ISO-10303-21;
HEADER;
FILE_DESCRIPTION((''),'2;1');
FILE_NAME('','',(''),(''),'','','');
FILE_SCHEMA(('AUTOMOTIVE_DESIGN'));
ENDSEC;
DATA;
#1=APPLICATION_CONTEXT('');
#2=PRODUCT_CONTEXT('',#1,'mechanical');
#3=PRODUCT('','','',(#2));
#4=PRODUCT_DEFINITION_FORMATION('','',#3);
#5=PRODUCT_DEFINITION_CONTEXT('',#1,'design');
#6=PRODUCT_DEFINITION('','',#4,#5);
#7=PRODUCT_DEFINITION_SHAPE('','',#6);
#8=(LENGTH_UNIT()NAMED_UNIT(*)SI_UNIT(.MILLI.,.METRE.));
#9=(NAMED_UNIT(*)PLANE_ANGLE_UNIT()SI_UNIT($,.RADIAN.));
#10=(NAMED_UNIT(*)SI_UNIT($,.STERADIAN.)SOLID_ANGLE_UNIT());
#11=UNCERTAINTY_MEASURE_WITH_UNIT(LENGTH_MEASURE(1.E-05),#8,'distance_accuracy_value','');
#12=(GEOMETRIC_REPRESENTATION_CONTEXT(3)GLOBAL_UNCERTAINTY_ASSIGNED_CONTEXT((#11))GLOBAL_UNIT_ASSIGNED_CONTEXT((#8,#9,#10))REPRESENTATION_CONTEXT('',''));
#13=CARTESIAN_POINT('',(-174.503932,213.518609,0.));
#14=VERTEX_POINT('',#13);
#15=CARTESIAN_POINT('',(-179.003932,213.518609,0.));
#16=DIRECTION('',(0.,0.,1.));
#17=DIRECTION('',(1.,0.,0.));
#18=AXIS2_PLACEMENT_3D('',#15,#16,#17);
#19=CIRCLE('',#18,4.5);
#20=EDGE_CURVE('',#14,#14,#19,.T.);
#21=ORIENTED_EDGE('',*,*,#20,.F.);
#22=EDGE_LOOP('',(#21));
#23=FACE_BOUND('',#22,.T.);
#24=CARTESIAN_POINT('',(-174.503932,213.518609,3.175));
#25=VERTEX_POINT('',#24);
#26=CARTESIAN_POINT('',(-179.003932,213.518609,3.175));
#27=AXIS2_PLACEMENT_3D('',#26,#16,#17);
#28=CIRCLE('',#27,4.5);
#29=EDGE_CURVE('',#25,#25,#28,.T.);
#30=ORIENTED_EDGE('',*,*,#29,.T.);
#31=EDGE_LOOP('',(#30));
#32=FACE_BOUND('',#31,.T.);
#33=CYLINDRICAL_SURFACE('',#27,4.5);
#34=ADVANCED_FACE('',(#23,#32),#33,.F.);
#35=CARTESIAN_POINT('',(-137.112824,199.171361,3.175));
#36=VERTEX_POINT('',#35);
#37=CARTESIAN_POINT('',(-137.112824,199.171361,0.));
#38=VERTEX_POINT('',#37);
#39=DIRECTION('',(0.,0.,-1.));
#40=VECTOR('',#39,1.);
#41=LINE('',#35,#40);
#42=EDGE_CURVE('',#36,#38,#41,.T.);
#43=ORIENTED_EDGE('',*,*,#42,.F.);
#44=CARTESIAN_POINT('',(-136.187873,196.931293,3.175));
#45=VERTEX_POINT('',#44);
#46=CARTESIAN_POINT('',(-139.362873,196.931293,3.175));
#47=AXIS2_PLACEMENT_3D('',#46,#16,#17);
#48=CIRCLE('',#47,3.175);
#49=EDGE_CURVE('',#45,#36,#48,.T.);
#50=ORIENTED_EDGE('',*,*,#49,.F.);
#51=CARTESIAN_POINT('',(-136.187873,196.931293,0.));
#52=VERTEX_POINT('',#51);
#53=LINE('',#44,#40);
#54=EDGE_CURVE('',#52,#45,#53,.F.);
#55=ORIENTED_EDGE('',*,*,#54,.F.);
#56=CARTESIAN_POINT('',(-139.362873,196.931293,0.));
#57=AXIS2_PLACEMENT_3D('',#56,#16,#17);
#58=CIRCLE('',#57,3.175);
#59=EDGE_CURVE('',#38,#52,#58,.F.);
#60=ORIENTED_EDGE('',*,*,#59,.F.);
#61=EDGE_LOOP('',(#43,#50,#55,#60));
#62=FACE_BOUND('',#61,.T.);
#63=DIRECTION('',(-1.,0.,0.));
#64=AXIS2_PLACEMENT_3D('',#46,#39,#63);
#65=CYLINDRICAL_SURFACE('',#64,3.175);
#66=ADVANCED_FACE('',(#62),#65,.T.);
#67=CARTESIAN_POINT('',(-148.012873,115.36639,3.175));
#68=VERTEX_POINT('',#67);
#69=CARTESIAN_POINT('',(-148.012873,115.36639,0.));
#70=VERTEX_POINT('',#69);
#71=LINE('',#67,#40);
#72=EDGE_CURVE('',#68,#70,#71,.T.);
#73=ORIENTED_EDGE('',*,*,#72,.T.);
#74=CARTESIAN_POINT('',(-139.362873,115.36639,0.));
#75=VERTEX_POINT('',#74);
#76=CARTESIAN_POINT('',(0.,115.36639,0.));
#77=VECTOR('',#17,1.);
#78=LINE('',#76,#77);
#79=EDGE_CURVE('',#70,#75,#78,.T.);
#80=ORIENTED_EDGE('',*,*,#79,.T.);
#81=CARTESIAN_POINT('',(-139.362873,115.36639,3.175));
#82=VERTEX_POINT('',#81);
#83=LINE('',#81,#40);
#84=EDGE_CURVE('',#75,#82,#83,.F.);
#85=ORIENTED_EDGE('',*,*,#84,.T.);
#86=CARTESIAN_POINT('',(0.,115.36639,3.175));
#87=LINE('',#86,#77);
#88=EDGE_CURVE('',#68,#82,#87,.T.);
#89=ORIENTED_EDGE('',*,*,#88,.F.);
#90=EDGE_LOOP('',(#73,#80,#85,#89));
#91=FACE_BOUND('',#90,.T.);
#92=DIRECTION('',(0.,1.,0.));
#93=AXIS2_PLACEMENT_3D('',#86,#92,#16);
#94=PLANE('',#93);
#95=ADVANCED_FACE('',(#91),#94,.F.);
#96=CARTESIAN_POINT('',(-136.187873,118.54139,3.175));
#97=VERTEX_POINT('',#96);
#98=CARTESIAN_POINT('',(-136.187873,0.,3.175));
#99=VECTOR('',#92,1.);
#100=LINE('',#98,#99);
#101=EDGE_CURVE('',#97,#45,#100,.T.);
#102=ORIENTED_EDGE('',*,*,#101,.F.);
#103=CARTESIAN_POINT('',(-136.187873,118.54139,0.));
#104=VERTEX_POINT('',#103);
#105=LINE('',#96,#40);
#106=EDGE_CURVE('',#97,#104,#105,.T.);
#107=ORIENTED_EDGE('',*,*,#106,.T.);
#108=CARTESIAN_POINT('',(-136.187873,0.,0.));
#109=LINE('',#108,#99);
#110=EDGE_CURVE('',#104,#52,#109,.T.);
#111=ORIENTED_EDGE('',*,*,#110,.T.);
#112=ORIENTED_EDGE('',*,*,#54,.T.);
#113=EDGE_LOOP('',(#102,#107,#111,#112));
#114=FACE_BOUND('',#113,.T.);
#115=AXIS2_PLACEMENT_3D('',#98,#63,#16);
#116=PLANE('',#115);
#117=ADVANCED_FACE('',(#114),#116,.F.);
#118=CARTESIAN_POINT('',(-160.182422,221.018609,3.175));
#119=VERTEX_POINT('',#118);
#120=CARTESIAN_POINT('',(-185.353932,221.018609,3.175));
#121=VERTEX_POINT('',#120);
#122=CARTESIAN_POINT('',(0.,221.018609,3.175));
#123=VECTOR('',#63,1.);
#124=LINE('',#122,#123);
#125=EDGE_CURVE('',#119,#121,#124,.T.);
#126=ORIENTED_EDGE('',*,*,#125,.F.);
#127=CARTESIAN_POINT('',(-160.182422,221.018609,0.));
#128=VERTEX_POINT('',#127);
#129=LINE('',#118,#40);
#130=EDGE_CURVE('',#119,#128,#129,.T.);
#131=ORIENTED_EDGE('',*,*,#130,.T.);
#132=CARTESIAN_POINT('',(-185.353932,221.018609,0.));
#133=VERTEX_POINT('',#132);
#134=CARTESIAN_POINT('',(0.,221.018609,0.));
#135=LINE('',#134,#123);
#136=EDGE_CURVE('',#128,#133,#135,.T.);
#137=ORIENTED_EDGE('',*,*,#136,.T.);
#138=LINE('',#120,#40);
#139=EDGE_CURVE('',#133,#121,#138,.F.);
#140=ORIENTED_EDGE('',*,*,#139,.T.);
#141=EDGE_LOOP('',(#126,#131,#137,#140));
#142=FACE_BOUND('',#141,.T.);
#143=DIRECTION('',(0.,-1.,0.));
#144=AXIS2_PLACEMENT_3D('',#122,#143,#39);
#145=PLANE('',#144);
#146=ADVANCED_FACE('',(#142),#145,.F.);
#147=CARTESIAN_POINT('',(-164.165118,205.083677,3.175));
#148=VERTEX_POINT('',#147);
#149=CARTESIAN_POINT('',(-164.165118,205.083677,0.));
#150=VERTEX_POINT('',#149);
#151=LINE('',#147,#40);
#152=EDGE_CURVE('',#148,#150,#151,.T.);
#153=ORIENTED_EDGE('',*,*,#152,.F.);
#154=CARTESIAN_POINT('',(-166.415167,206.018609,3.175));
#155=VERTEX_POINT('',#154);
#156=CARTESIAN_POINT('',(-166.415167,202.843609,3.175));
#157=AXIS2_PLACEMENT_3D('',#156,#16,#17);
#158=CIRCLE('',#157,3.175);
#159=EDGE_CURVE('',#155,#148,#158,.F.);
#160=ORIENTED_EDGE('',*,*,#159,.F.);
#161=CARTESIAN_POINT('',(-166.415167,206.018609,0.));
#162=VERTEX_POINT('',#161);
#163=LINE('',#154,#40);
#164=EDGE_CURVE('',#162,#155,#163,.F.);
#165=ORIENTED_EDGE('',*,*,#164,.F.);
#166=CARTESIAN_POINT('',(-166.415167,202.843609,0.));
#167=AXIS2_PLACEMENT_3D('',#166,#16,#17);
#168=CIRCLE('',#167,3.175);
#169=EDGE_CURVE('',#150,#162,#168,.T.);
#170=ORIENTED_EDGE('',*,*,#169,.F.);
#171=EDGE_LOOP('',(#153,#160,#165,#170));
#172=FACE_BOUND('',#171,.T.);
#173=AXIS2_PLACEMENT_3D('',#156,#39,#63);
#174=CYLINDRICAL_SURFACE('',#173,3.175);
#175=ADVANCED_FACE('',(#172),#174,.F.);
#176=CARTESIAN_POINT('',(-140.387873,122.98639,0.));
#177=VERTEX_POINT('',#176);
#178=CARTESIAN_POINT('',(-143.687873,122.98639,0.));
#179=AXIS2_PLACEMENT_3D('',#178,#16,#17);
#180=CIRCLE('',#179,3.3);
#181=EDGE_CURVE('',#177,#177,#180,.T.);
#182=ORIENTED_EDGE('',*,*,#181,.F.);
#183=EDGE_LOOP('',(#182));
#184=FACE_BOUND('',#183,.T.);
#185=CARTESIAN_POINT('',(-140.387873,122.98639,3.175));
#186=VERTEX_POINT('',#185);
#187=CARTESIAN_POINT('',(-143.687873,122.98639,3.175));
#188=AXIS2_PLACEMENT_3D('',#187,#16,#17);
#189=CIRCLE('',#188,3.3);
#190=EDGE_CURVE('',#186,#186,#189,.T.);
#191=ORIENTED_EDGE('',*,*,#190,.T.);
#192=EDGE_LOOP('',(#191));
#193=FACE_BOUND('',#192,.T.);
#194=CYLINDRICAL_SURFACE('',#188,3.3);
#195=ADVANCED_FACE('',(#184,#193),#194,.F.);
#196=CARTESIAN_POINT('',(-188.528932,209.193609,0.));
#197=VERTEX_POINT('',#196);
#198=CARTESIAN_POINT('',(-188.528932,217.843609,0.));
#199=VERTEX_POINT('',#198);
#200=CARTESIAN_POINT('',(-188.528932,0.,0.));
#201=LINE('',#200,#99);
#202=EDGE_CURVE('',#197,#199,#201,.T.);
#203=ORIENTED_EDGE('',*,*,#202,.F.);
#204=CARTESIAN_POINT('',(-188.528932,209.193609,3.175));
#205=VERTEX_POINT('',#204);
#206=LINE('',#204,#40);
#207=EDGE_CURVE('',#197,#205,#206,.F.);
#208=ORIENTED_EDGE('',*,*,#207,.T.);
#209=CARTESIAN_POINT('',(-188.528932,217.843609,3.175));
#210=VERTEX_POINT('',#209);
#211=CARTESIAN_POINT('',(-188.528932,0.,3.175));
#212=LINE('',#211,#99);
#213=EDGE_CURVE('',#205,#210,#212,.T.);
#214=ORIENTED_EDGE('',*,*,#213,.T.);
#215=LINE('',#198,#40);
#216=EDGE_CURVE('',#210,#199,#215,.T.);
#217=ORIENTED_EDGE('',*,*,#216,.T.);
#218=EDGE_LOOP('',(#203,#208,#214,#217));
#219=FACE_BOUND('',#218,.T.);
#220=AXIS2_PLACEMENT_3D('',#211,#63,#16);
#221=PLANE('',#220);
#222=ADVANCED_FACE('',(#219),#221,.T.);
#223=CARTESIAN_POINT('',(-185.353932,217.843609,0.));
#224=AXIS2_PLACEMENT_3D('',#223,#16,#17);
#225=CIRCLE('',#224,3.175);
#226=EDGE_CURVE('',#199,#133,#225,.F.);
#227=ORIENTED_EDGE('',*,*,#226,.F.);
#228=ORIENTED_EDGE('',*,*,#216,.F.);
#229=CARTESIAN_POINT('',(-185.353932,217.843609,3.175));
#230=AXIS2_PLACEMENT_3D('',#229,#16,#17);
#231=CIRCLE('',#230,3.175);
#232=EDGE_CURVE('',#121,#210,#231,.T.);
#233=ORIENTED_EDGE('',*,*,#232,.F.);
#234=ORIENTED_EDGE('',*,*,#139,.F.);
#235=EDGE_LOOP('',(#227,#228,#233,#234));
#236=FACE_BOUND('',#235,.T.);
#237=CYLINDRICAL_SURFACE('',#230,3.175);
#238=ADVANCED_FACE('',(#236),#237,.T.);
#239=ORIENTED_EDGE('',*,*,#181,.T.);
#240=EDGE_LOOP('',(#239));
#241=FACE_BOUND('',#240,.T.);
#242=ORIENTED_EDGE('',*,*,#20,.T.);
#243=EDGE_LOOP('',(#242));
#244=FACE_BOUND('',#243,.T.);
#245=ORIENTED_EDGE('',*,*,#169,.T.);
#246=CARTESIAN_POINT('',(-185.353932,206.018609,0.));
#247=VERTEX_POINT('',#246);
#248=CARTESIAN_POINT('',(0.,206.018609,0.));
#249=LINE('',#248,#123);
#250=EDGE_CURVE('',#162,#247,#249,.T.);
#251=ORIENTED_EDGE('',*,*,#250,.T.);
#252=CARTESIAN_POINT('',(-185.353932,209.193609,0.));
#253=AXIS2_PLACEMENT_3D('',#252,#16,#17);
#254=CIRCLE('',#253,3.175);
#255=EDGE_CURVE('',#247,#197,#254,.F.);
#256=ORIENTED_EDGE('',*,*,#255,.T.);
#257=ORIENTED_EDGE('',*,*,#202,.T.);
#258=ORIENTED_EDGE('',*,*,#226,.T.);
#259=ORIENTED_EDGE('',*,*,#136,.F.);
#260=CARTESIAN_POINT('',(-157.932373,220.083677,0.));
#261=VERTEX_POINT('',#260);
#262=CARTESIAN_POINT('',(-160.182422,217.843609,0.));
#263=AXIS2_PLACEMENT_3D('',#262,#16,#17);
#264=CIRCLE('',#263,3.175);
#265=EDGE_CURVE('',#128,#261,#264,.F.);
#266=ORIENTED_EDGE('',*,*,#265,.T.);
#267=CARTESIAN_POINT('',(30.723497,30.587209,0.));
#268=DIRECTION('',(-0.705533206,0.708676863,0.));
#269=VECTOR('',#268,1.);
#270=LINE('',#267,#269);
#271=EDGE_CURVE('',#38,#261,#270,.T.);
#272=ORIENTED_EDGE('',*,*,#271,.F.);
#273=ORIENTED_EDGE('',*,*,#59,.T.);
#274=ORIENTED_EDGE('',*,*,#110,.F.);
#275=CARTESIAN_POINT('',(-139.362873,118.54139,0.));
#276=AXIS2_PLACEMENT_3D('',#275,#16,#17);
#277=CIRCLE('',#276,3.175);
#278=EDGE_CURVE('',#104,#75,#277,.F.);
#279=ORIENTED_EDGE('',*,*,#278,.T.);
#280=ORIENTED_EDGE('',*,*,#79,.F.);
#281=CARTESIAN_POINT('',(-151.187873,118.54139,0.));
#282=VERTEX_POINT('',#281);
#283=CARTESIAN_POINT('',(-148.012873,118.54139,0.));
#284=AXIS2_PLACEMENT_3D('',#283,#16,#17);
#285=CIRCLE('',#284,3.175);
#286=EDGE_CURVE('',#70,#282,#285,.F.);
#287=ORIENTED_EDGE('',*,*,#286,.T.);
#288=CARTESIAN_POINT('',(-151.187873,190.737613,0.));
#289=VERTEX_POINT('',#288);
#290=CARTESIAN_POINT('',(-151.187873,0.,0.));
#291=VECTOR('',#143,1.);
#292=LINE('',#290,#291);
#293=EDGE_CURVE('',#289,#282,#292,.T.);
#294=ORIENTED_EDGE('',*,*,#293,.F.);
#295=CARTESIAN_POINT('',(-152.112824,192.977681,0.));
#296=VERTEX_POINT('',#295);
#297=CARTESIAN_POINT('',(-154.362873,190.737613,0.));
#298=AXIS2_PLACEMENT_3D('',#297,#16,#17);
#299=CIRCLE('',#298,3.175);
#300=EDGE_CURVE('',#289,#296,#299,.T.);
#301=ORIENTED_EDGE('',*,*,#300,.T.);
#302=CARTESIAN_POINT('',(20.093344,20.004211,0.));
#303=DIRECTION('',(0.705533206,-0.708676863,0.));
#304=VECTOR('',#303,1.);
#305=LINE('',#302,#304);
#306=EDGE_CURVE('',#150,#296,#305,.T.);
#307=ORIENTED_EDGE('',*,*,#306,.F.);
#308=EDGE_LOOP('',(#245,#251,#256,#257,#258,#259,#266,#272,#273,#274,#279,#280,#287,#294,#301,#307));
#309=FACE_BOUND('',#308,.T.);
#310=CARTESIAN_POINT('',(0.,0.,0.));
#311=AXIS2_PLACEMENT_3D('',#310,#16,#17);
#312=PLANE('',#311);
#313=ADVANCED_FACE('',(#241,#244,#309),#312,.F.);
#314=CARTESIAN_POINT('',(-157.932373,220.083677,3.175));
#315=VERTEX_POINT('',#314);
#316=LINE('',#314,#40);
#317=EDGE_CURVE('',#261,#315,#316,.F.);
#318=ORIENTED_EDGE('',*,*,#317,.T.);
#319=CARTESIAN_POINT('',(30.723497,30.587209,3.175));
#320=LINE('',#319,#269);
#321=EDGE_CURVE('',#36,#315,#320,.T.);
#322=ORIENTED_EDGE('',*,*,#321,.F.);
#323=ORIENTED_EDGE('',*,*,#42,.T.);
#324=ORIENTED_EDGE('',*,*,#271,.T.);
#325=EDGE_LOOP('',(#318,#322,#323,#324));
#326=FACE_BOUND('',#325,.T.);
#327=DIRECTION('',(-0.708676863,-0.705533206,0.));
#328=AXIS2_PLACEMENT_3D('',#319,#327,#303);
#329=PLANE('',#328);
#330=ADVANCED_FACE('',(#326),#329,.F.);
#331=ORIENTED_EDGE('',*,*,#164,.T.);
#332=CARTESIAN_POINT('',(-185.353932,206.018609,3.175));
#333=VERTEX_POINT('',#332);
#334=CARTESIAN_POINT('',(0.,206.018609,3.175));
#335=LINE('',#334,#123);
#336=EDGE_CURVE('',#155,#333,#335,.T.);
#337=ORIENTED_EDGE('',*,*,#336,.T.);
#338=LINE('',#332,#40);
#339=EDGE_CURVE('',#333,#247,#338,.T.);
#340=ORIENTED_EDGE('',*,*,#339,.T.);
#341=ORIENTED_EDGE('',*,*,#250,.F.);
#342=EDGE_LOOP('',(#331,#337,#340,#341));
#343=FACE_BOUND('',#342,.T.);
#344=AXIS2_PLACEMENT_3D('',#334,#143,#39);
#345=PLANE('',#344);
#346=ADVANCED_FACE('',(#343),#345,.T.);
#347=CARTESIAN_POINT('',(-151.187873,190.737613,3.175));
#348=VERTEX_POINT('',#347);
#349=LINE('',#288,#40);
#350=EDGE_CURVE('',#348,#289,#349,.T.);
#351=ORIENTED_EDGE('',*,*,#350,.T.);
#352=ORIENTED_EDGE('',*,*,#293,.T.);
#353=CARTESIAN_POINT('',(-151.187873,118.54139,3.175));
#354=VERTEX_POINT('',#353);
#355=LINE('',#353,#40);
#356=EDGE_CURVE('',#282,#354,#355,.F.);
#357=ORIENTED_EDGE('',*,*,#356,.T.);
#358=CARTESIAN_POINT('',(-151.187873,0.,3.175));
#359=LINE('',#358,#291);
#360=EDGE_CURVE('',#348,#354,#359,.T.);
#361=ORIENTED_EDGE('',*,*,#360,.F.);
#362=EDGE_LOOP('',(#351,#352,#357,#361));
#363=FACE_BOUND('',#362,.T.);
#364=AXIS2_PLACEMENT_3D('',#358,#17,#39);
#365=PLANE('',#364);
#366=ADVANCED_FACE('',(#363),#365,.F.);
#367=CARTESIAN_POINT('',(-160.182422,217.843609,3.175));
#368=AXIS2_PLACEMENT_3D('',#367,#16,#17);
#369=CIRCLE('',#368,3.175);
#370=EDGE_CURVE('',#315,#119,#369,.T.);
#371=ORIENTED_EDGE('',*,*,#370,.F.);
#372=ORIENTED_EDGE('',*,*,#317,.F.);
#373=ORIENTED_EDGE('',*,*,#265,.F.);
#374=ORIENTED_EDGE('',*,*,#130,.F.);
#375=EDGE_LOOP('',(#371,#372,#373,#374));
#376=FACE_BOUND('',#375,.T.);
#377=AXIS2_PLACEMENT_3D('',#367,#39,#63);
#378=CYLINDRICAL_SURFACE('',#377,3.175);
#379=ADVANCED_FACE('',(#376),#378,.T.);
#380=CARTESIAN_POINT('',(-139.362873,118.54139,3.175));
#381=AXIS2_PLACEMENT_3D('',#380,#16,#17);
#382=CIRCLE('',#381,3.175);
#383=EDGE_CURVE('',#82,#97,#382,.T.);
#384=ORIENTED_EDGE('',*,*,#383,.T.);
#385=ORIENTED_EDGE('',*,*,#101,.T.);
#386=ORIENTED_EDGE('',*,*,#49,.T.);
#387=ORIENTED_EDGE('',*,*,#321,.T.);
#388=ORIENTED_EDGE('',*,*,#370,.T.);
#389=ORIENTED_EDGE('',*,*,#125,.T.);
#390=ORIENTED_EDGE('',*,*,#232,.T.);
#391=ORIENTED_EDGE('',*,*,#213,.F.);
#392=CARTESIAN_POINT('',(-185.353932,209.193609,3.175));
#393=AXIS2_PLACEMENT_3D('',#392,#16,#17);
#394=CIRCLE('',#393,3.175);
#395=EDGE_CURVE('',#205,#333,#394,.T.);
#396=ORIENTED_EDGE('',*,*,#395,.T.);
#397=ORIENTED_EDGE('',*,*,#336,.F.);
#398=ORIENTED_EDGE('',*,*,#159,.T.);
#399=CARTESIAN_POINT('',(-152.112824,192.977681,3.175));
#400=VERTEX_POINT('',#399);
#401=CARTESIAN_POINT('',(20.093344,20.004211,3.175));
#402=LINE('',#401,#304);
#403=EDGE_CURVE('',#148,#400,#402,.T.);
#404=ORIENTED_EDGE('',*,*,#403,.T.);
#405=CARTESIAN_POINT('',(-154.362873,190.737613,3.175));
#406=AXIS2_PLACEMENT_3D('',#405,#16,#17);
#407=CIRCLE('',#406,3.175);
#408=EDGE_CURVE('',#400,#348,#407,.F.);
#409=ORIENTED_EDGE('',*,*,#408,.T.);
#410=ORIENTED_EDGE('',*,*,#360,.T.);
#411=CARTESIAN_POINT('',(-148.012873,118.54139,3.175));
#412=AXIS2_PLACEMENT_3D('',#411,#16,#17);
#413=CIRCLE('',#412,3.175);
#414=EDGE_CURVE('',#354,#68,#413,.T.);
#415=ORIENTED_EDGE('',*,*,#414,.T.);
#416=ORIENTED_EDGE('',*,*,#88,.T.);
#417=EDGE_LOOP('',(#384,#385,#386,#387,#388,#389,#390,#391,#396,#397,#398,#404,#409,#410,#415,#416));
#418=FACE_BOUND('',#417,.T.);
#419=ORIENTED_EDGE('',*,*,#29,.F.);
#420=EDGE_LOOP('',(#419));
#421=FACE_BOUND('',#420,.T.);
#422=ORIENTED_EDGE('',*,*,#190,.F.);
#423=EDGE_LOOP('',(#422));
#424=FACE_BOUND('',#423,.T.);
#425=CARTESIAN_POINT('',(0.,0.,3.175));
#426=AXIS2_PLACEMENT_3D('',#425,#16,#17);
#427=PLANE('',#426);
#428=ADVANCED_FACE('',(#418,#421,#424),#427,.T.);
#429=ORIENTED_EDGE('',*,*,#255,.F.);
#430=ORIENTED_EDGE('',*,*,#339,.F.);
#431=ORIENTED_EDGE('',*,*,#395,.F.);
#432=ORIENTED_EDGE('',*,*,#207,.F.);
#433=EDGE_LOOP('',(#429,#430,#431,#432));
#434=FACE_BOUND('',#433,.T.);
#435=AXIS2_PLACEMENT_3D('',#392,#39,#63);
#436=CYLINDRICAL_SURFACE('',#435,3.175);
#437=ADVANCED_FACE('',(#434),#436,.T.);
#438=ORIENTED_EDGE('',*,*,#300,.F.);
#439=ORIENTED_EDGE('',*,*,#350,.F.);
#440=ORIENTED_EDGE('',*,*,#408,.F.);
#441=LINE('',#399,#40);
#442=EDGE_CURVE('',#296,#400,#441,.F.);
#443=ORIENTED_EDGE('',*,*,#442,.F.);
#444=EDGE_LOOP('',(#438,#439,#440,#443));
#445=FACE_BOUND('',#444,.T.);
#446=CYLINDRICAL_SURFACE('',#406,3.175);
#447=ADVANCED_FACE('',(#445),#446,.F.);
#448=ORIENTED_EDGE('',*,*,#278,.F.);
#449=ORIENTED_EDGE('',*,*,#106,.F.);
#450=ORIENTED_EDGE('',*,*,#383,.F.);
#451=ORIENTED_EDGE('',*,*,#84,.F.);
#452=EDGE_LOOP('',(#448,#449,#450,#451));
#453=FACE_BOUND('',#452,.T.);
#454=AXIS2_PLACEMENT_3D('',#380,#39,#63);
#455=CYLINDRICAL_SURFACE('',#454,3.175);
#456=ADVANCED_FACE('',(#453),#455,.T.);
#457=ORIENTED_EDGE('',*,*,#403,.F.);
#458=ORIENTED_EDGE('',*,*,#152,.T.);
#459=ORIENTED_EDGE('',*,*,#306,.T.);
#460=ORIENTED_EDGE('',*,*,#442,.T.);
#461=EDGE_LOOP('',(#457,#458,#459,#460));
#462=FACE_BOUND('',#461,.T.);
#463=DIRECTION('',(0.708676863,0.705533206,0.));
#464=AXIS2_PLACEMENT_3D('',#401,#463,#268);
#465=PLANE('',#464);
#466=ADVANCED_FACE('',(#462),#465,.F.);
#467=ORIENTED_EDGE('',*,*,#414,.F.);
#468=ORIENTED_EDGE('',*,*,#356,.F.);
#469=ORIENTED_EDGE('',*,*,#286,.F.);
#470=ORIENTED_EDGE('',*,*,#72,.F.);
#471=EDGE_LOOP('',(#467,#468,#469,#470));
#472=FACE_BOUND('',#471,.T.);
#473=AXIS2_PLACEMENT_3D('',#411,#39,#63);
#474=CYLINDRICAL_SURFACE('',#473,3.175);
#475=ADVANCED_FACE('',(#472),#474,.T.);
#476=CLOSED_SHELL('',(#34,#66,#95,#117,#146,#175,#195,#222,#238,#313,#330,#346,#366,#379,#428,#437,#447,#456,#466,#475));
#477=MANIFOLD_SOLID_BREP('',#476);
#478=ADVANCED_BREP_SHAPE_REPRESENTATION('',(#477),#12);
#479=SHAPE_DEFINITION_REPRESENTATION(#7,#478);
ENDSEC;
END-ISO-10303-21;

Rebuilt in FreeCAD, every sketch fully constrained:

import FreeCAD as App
import Part
import Sketcher
from FreeCAD import Vector
Q = App.Units.Quantity


def edges_at(feature, points):
    """Names of the edges that pass closest to the given points."""
    edges = feature.Shape.Edges
    near = lambda p: min(range(len(edges)), key=lambda i: edges[i].distToShape(Part.Vertex(*p))[0])
    return sorted({f"Edge{near(p) + 1}" for p in points})


def add_polygon(sketch, points):
    """Adds a closed chain of lines whose ends are joined by coincident constraints."""
    first, n = sketch.GeometryCount, len(points)
    for a, b in zip(points, points[1:] + points[:1]):
        sketch.addGeometry(Part.LineSegment(App.Vector(*a, 0), App.Vector(*b, 0)), False)
    for i in range(n):
        sketch.addConstraint(Sketcher.Constraint("Coincident", first + i, 2, first + (i + 1) % n, 1))

doc = App.newDocument("Part")
body = doc.addObject("PartDesign::Body", "Body")

# Sketch on XY plane
sketch1 = body.newObject("Sketcher::SketchObject", "Sketch")
sketch1.AttachmentSupport = (doc.getObject("XY_Plane"), [""])
sketch1.MapMode = "FlatFace"
add_polygon(sketch1, [(-136, 198), (-159, 221), (-189, 221), (-189, 206), (-165, 206), (-151, 192), (-151, 115), (-136, 115)])  # lines 0-7
sketch1.addConstraint([
    Sketcher.Constraint("Horizontal", 1),
    Sketcher.Constraint("Vertical", 2),
    Sketcher.Constraint("Horizontal", 3),
    Sketcher.Constraint("Vertical", 5),
    Sketcher.Constraint("Horizontal", 6),
    Sketcher.Constraint("Vertical", 7),
    Sketcher.Constraint("Parallel", 0, 4),
    Sketcher.Constraint("Equal", 6, 2),
    Sketcher.Constraint("DistanceX", 6, 1, 6, 2, Q("15 mm")),
    Sketcher.Constraint("DistanceY", 4, 2, 3, 2, Q("13.97 mm")),
    Sketcher.Constraint("DistanceY", 7, 1, 7, 2, Q("82.875899 mm")),
    Sketcher.Constraint("DistanceX", 3, 1, 3, 2, Q("23.43303 mm")),
    Sketcher.Constraint("DistanceY", 5, 2, 5, 1, Q("76.682219 mm")),
    Sketcher.Constraint("DistanceX", 1, 2, 1, 1, Q("29.665774 mm")),
    Sketcher.Constraint("DistanceY", -1, 1, 0, 2, Q("221.018609 mm")),
    Sketcher.Constraint("DistanceX", 0, 2, -1, 1, Q("158.863158 mm")),
])
pad1 = body.newObject("PartDesign::Pad", "Pad")
pad1.Profile = sketch1
pad1.Length = 3.175

# Sketch on XY plane
sketch2 = body.newObject("Sketcher::SketchObject", "Sketch001")
sketch2.AttachmentSupport = (doc.getObject("XY_Plane"), [""])
sketch2.MapMode = "FlatFace"
sketch2.AttachmentOffset = App.Placement(Vector(0, 0, 3.175), App.Rotation())
sketch2.addGeometry(Part.Circle(Vector(-143.7, 123, 0), Vector(0, 0, 1), 3.3), False)
sketch2.addConstraint([
    Sketcher.Constraint("Diameter", 0, Q("6.6 mm")),
    Sketcher.Constraint("DistanceY", -1, 1, 0, 3, Q("122.98639 mm")),
    Sketcher.Constraint("DistanceX", 0, 3, -1, 1, Q("143.687873 mm")),
])
doc.recompute()
hole = body.newObject("PartDesign::Hole", "Hole")
hole.Profile = sketch2
hole.ThreadType = "None"
hole.Diameter = 6.6
hole.DepthType = "ThroughAll"
doc.recompute()

fillet = body.newObject("PartDesign::Fillet", "Fillet")
fillet.Base = (hole, edges_at(hole, [
    (-188.529, 206.019, 1.587),
    (-188.529, 221.019, 1.587),
    (-158.863, 221.019, 1.587),
    (-136.188, 198.242, 1.587),
    (-136.188, 115.366, 1.587),
    (-151.188, 115.366, 1.587),
    (-151.188, 192.049, 1.587),
    (-165.096, 206.019, 1.587),
]))
fillet.Radius = 3.175

# Sketch on XY plane
sketch3 = body.newObject("Sketcher::SketchObject", "Sketch002")
sketch3.AttachmentSupport = (doc.getObject("XY_Plane"), [""])
sketch3.MapMode = "FlatFace"
sketch3.AttachmentOffset = App.Placement(Vector(0, 0, 3.175), App.Rotation())
sketch3.addGeometry(Part.Circle(Vector(-179, 213.5, 0), Vector(0, 0, 1), 4.5), False)
sketch3.addConstraint([
    Sketcher.Constraint("Diameter", 0, Q("9 mm")),
    Sketcher.Constraint("DistanceY", -1, 1, 0, 3, Q("213.518609 mm")),
    Sketcher.Constraint("DistanceX", 0, 3, -1, 1, Q("179.003932 mm")),
])
doc.recompute()
hole2 = body.newObject("PartDesign::Hole", "Hole001")
hole2.Profile = sketch3
hole2.ThreadType = "None"
hole2.Diameter = 9
hole2.DepthType = "ThroughAll"

doc.recompute()
